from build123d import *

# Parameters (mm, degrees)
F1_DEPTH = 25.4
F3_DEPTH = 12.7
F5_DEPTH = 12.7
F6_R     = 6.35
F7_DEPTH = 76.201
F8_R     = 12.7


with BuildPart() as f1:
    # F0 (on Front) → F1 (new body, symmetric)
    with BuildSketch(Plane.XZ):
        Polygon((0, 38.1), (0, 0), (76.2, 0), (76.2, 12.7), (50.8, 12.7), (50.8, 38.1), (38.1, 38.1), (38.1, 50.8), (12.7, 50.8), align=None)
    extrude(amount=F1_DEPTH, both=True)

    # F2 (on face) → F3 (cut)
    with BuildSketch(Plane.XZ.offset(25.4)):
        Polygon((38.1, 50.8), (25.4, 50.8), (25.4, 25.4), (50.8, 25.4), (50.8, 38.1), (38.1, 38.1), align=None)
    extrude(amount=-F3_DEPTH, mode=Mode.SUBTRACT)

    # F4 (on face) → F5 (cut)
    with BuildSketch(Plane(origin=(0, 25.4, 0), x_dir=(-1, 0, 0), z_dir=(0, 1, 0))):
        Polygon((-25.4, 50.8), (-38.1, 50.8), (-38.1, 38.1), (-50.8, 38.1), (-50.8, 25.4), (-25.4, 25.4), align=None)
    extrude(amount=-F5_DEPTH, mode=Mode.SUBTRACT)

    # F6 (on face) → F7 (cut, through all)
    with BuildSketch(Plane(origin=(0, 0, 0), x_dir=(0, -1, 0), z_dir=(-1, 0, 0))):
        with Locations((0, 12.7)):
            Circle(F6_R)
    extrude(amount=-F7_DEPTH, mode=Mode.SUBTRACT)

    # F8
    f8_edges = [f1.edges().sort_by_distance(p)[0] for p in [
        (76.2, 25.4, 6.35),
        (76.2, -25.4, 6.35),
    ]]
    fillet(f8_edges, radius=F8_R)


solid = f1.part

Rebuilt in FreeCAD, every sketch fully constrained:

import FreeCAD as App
import Part
import Sketcher

V = App.Vector
Q = App.Units.Quantity


def edges_at(feature, points):
    """Names of the edges that pass closest to the given points."""
    edges = feature.Shape.Edges
    near = lambda p: min(range(len(edges)), key=lambda i: edges[i].distToShape(Part.Vertex(*p))[0])
    return sorted({f"Edge{near(p) + 1}" for p in points})

doc = App.newDocument("Part")
body = doc.addObject("PartDesign::Body", "Body")

# Sketch on XZ plane
sketch1 = doc.addObject("Sketcher::SketchObject", "Sketch")
body.addObject(sketch1)
sketch1.AttachmentSupport = (doc.XZ_Plane, [""])
sketch1.MapMode = "FlatFace"
sketch1.addGeometry([
    Part.LineSegment(V(0, 38, 0), V(0, 0, 0)),  # 0
    Part.LineSegment(V(0, 0, 0), V(76, 0, 0)),  # 1
    Part.LineSegment(V(76, 0, 0), V(76, 13, 0)),  # 2
    Part.LineSegment(V(76, 13, 0), V(51, 13, 0)),  # 3
    Part.LineSegment(V(51, 13, 0), V(51, 38, 0)),  # 4
    Part.LineSegment(V(51, 38, 0), V(38, 38, 0)),  # 5
    Part.LineSegment(V(38, 38, 0), V(38, 51, 0)),  # 6
    Part.LineSegment(V(38, 51, 0), V(13, 51, 0)),  # 7
    Part.LineSegment(V(13, 51, 0), V(0, 38, 0)),  # 8
], False)
sketch1.addConstraint([
    Sketcher.Constraint("Coincident", 0, 2, 1, 1),
    Sketcher.Constraint("Coincident", 1, 2, 2, 1),
    Sketcher.Constraint("Coincident", 2, 2, 3, 1),
    Sketcher.Constraint("Coincident", 3, 2, 4, 1),
    Sketcher.Constraint("Coincident", 4, 2, 5, 1),
    Sketcher.Constraint("Coincident", 5, 2, 6, 1),
    Sketcher.Constraint("Coincident", 6, 2, 7, 1),
    Sketcher.Constraint("Coincident", 7, 2, 8, 1),
    Sketcher.Constraint("Coincident", 8, 2, 0, 1),
    Sketcher.Constraint("Vertical", 0),
    Sketcher.Constraint("Horizontal", 1),
    Sketcher.Constraint("Vertical", 2),
    Sketcher.Constraint("Horizontal", 3),
    Sketcher.Constraint("Vertical", 4),
    Sketcher.Constraint("Horizontal", 5),
    Sketcher.Constraint("Vertical", 6),
    Sketcher.Constraint("Horizontal", 7),
    Sketcher.Constraint("Coincident", 0, 2, -1, 1),
    Sketcher.Constraint("Horizontal", 5, 2, 8, 2),
    Sketcher.Constraint("Equal", 3, 7),
    Sketcher.Constraint("Equal", 5, 2),
    Sketcher.Constraint("Equal", 7, 4),
    Sketcher.Constraint("Equal", 2, 6),
    Sketcher.Constraint("DistanceX", 1, 1, 1, 2, Q("3 in")),
    Sketcher.Constraint("DistanceX", 3, 2, 3, 1, Q("1 in")),
    Sketcher.Constraint("DistanceX", 5, 2, 5, 1, Q("0.5 in")),
])
pad1 = doc.addObject("PartDesign::Pad", "Pad")
body.addObject(pad1)
pad1.Profile = sketch1
pad1.Length = Q("2 in")
pad1.Midplane = True

# Sketch on XZ plane
sketch2 = doc.addObject("Sketcher::SketchObject", "Sketch001")
body.addObject(sketch2)
sketch2.AttachmentSupport = (doc.XZ_Plane, [""])
sketch2.MapMode = "FlatFace"
sketch2.AttachmentOffset = App.Placement(V(0, 0, 1 * 25.4), App.Rotation())
sketch2.addGeometry([
    Part.LineSegment(V(38, 51, 0), V(25, 51, 0)),  # 0
    Part.LineSegment(V(25, 51, 0), V(25, 25, 0)),  # 1
    Part.LineSegment(V(25, 25, 0), V(51, 25, 0)),  # 2
    Part.LineSegment(V(51, 25, 0), V(51, 38, 0)),  # 3
    Part.LineSegment(V(51, 38, 0), V(38, 38, 0)),  # 4
    Part.LineSegment(V(38, 38, 0), V(38, 51, 0)),  # 5
], False)
sketch2.addConstraint([
    Sketcher.Constraint("Coincident", 0, 2, 1, 1),
    Sketcher.Constraint("Coincident", 1, 2, 2, 1),
    Sketcher.Constraint("Coincident", 2, 2, 3, 1),
    Sketcher.Constraint("Coincident", 3, 2, 4, 1),
    Sketcher.Constraint("Coincident", 4, 2, 5, 1),
    Sketcher.Constraint("Coincident", 5, 2, 0, 1),
    Sketcher.Constraint("Horizontal", 0),
    Sketcher.Constraint("Vertical", 1),
    Sketcher.Constraint("Horizontal", 2),
    Sketcher.Constraint("Vertical", 3),
    Sketcher.Constraint("Horizontal", 4),
    Sketcher.Constraint("Vertical", 5),
    Sketcher.Constraint("Equal", 0, 4),
    Sketcher.Constraint("Equal", 2, 1),
    Sketcher.Constraint("Equal", 4, 3),
    Sketcher.Constraint("DistanceX", 2, 1, 2, 2, Q("1 in")),
    Sketcher.Constraint("DistanceX", -1, 1, 0, 2, Q("1 in")),
    Sketcher.Constraint("DistanceY", -1, 1, 0, 2, Q("2 in")),
])
pocket1 = doc.addObject("PartDesign::Pocket", "Pocket")
body.addObject(pocket1)
pocket1.Profile = sketch2
pocket1.Length = Q("0.5 in")

# Sketch on XZ plane
sketch3 = doc.addObject("Sketcher::SketchObject", "Sketch002")
body.addObject(sketch3)
sketch3.AttachmentSupport = (doc.XZ_Plane, [""])
sketch3.MapMode = "FlatFace"
sketch3.AttachmentOffset = App.Placement(V(0, 0, -1 * 25.4), App.Rotation())
sketch3.addGeometry([
    Part.LineSegment(V(25, 51, 0), V(38, 51, 0)),  # 0
    Part.LineSegment(V(38, 51, 0), V(38, 38, 0)),  # 1
    Part.LineSegment(V(38, 38, 0), V(51, 38, 0)),  # 2
    Part.LineSegment(V(51, 38, 0), V(51, 25, 0)),  # 3
    Part.LineSegment(V(51, 25, 0), V(25, 25, 0)),  # 4
    Part.LineSegment(V(25, 25, 0), V(25, 51, 0)),  # 5
], False)
sketch3.addConstraint([
    Sketcher.Constraint("Coincident", 0, 2, 1, 1),
    Sketcher.Constraint("Coincident", 1, 2, 2, 1),
    Sketcher.Constraint("Coincident", 2, 2, 3, 1),
    Sketcher.Constraint("Coincident", 3, 2, 4, 1),
    Sketcher.Constraint("Coincident", 4, 2, 5, 1),
    Sketcher.Constraint("Coincident", 5, 2, 0, 1),
    Sketcher.Constraint("Horizontal", 0),
    Sketcher.Constraint("Vertical", 1),
    Sketcher.Constraint("Horizontal", 2),
    Sketcher.Constraint("Vertical", 3),
    Sketcher.Constraint("Horizontal", 4),
    Sketcher.Constraint("Vertical", 5),
    Sketcher.Constraint("Equal", 0, 2),
    Sketcher.Constraint("Equal", 2, 1),
    Sketcher.Constraint("Equal", 1, 3),
    Sketcher.Constraint("DistanceX", 4, 2, 4, 1, Q("1 in")),
    Sketcher.Constraint("DistanceY", -1, 1, 0, 2, Q("2 in")),
    Sketcher.Constraint("DistanceX", -1, 1, 2, 2, Q("2 in")),
])
pocket2 = doc.addObject("PartDesign::Pocket", "Pocket001")
body.addObject(pocket2)
pocket2.Profile = sketch3
pocket2.Length = Q("0.5 in")
pocket2.Reversed = True

# Sketch on YZ plane
sketch4 = doc.addObject("Sketcher::SketchObject", "Sketch003")
body.addObject(sketch4)
sketch4.AttachmentSupport = (doc.YZ_Plane, [""])
sketch4.MapMode = "FlatFace"
sketch4.addGeometry(Part.Circle(V(0, 13, 0), V(0, 0, 1), 6), False)
sketch4.addConstraint([
    Sketcher.Constraint("PointOnObject", 0, 3, -2),
    Sketcher.Constraint("Diameter", 0, Q("0.5 in")),
    Sketcher.Constraint("DistanceY", -1, 1, 0, 3, Q("0.5 in")),
])
pocket3 = doc.addObject("PartDesign::Pocket", "Pocket002")
body.addObject(pocket3)
pocket3.Profile = sketch4
pocket3.Type = "ThroughAll"
pocket3.Reversed = True
doc.recompute()

fillet = doc.addObject("PartDesign::Fillet", "Fillet")
body.addObject(fillet)
fillet.Base = (pocket3, edges_at(pocket3, [(76.2, 25.4, 6.35), (76.2, -25.4, 6.35)]))
fillet.Radius = Q("0.5 in")

doc.recompute()
